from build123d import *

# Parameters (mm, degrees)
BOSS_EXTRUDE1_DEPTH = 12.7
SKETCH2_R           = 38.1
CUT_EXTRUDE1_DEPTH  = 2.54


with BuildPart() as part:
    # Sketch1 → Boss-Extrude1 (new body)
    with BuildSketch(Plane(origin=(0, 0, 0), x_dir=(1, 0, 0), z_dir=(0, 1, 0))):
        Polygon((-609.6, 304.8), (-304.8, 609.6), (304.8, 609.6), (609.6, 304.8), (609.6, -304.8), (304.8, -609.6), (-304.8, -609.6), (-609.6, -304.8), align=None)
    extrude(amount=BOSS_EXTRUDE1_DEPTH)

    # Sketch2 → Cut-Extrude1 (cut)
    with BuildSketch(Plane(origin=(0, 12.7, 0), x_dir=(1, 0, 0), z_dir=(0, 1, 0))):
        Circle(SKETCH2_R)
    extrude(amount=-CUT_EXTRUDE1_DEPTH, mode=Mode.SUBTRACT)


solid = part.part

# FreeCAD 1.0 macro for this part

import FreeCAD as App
import Part
import Sketcher

V = App.Vector
Q = App.Units.Quantity

doc = App.newDocument("Part")
body = doc.addObject("PartDesign::Body", "Body")

sketch1 = doc.addObject("Sketcher::SketchObject", "Sketch")
body.addObject(sketch1)
sketch1.AttachmentSupport = (doc.XZ_Plane, [""])
sketch1.MapMode = "FlatFace"
sketch1.addGeometry(Part.LineSegment(V(-305, -610, 0), V(-610, -305, 0)), False)
sketch1.addGeometry(Part.LineSegment(V(-610, -305, 0), V(-610, 305, 0)), False)
sketch1.addGeometry(Part.LineSegment(V(-610, 305, 0), V(-305, 610, 0)), False)
sketch1.addGeometry(Part.LineSegment(V(-305, 610, 0), V(305, 610, 0)), False)
sketch1.addGeometry(Part.LineSegment(V(305, 610, 0), V(610, 305, 0)), False)
sketch1.addGeometry(Part.LineSegment(V(610, 305, 0), V(610, -305, 0)), False)
sketch1.addGeometry(Part.LineSegment(V(610, -305, 0), V(305, -610, 0)), False)
sketch1.addGeometry(Part.LineSegment(V(305, -610, 0), V(-305, -610, 0)), False)
sketch1.addConstraint(Sketcher.Constraint("Coincident", 0, 2, 1, 1))
sketch1.addConstraint(Sketcher.Constraint("Coincident", 1, 2, 2, 1))
sketch1.addConstraint(Sketcher.Constraint("Coincident", 2, 2, 3, 1))
sketch1.addConstraint(Sketcher.Constraint("Coincident", 3, 2, 4, 1))
sketch1.addConstraint(Sketcher.Constraint("Coincident", 4, 2, 5, 1))
sketch1.addConstraint(Sketcher.Constraint("Coincident", 5, 2, 6, 1))
sketch1.addConstraint(Sketcher.Constraint("Coincident", 6, 2, 7, 1))
sketch1.addConstraint(Sketcher.Constraint("Coincident", 7, 2, 0, 1))
sketch1.addConstraint(Sketcher.Constraint("Vertical", 1))
sketch1.addConstraint(Sketcher.Constraint("Horizontal", 3))
sketch1.addConstraint(Sketcher.Constraint("Vertical", 5))
sketch1.addConstraint(Sketcher.Constraint("Horizontal", 7))
sketch1.addConstraint(Sketcher.Constraint("Symmetric", 0, 2, 4, 2, -1, 1))
sketch1.addConstraint(Sketcher.Constraint("Symmetric", 2, 2, 6, 2, -1, 1))
sketch1.addConstraint(Sketcher.Constraint("Perpendicular", 0, 2))
sketch1.addConstraint(Sketcher.Constraint("Perpendicular", 2, 4))
sketch1.addConstraint(Sketcher.Constraint("Perpendicular", 4, 6))
sketch1.addConstraint(Sketcher.Constraint("Horizontal", 1, 2, 4, 2))
sketch1.addConstraint(Sketcher.Constraint("Vertical", 3, 2, 6, 2))
sketch1.addConstraint(Sketcher.Constraint("Equal", 7, 1))
sketch1.addConstraint(Sketcher.Constraint("DistanceX", 3, 1, 3, 2, Q("24 in")))
sketch1.addConstraint(Sketcher.Constraint("DistanceX", 0, 2, -1, 1, Q("24 in")))
pad1 = doc.addObject("PartDesign::Pad", "Pad")
body.addObject(pad1)
pad1.Profile = sketch1
pad1.Length = Q("0.5 in")
pad1.Reversed = True

sketch2 = doc.addObject("Sketcher::SketchObject", "Sketch001")
body.addObject(sketch2)
sketch2.AttachmentSupport = (doc.XZ_Plane, [""])
sketch2.MapMode = "FlatFace"
sketch2.AttachmentOffset = App.Placement(V(0, 0, -0.5 * 25.4), App.Rotation())
sketch2.addGeometry(Part.Circle(V(0, 0, 0), V(0, 0, 1), 38), False)
sketch2.addConstraint(Sketcher.Constraint("Coincident", 0, 3, -1, 1))
sketch2.addConstraint(Sketcher.Constraint("Diameter", 0, Q("3 in")))
pocket1 = doc.addObject("PartDesign::Pocket", "Pocket")
body.addObject(pocket1)
pocket1.Profile = sketch2
pocket1.Length = Q("0.1 in")
pocket1.Reversed = True

doc.recompute()
